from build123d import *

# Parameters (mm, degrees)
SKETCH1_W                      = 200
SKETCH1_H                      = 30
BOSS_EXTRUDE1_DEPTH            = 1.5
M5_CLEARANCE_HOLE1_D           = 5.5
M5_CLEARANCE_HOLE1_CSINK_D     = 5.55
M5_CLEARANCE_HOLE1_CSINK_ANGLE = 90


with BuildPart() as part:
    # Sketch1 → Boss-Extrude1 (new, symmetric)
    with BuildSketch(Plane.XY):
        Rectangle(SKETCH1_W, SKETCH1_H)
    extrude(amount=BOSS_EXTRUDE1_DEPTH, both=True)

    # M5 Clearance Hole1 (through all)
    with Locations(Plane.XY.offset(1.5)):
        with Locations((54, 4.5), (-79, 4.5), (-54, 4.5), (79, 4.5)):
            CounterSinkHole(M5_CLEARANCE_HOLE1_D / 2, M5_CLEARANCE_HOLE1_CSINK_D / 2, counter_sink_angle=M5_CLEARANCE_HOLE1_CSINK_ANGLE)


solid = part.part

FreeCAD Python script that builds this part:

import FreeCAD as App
import Part
import Sketcher
from FreeCAD import Vector

doc = App.newDocument("Part")
body = doc.addObject("PartDesign::Body", "Body")

# Sketch on XY plane
sketch1 = body.newObject("Sketcher::SketchObject", "Sketch")
sketch1.AttachmentSupport = (doc.getObject("XY_Plane"), [""])
sketch1.MapMode = "FlatFace"
sketch1.addGeometry([
    Part.LineSegment(Vector(-100, 15, 0), Vector(-100, -15, 0)),
    Part.LineSegment(Vector(-100, -15, 0), Vector(100, -15, 0)),
    Part.LineSegment(Vector(100, -15, 0), Vector(100, 15, 0)),
    Part.LineSegment(Vector(100, 15, 0), Vector(-100, 15, 0)),
], False)
sketch1.addConstraint([
    Sketcher.Constraint("Coincident", 0, 2, 1, 1),
    Sketcher.Constraint("Coincident", 1, 2, 2, 1),
    Sketcher.Constraint("Coincident", 2, 2, 3, 1),
    Sketcher.Constraint("Coincident", 3, 2, 0, 1),
    Sketcher.Constraint("Vertical", 0),
    Sketcher.Constraint("Horizontal", 1),
    Sketcher.Constraint("Vertical", 2),
    Sketcher.Constraint("Horizontal", 3),
    Sketcher.Constraint("Symmetric", 0, 2, 2, 2, -1, 1),
    Sketcher.Constraint("DistanceX", 1, 1, 1, 2, 200.0),
    Sketcher.Constraint("DistanceY", 0, 2, 0, 1, 30.0),
])
pad1 = body.newObject("PartDesign::Pad", "Pad")
pad1.Profile = sketch1
pad1.Length = 3
pad1.Midplane = True

# Sketch on XY plane
sketch2 = body.newObject("Sketcher::SketchObject", "Sketch001")
sketch2.AttachmentSupport = (doc.getObject("XY_Plane"), [""])
sketch2.MapMode = "FlatFace"
sketch2.AttachmentOffset = App.Placement(Vector(0, 0, 1.5), App.Rotation())
sketch2.addGeometry([
    Part.Circle(Vector(54, 4.5, 0), Vector(0, 0, 1), 2.75),
    Part.Circle(Vector(-79, 4.5, 0), Vector(0, 0, 1), 2.75),
    Part.Circle(Vector(-54, 4.5, 0), Vector(0, 0, 1), 2.75),
    Part.Circle(Vector(79, 4.5, 0), Vector(0, 0, 1), 2.75),
], False)
sketch2.addConstraint([
    Sketcher.Constraint("Equal", 0, 1),
    Sketcher.Constraint("Equal", 1, 2),
    Sketcher.Constraint("Equal", 2, 3),
    Sketcher.Constraint("Symmetric", 0, 3, 2, 3, -2),
    Sketcher.Constraint("Symmetric", 1, 3, 3, 3, -2),
    Sketcher.Constraint("Horizontal", 0, 3, 1, 3),
    Sketcher.Constraint("Diameter", 0, 5.5),
    Sketcher.Constraint("DistanceX", -1, 1, 0, 3, 54.0),
    Sketcher.Constraint("DistanceX", 1, 3, -1, 1, 79.0),
    Sketcher.Constraint("DistanceY", -1, 1, 0, 3, 4.5),
])
doc.recompute()
hole = body.newObject("PartDesign::Hole", "Hole")
hole.Profile = sketch2
hole.ThreadType = "None"
hole.Diameter = 5.5
hole.DepthType = "ThroughAll"
hole.HoleCutType = "Countersink"
hole.HoleCutDiameter = 5.55
hole.HoleCutCountersinkAngle = 90

doc.recompute()
